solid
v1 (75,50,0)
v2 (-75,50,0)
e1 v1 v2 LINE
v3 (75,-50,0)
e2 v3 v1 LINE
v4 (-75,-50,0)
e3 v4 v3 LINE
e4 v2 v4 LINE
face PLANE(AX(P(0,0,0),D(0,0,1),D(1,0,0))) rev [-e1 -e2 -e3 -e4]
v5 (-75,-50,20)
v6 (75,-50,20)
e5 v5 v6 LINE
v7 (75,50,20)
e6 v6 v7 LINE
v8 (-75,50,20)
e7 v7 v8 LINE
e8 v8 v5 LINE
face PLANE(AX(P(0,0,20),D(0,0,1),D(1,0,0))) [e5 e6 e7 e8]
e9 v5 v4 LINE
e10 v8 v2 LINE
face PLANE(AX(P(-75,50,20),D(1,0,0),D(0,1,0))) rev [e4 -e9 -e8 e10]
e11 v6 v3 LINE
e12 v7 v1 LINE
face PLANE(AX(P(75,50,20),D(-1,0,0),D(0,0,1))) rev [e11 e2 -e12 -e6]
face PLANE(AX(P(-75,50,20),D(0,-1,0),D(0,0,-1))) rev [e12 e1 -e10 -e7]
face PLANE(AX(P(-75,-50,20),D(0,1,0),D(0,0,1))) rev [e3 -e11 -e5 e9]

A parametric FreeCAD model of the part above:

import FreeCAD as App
import Part
import Sketcher
from FreeCAD import Vector


def add_polygon(sketch, points):
    """Adds a closed chain of lines whose ends are joined by coincident constraints."""
    first, n = sketch.GeometryCount, len(points)
    for a, b in zip(points, points[1:] + points[:1]):
        sketch.addGeometry(Part.LineSegment(App.Vector(*a, 0), App.Vector(*b, 0)), False)
    for i in range(n):
        sketch.addConstraint(Sketcher.Constraint("Coincident", first + i, 2, first + (i + 1) % n, 1))

doc = App.newDocument("Part")
body = doc.addObject("PartDesign::Body", "Body")

# Sketch on XY plane
sketch1 = body.newObject("Sketcher::SketchObject", "Sketch")
sketch1.AttachmentSupport = (doc.getObject("XY_Plane"), [""])
sketch1.MapMode = "FlatFace"
add_polygon(sketch1, [(-75, 50), (-75, -50), (75, -50), (75, 50)])  # lines 0-3
sketch1.addConstraint(Sketcher.Constraint("Vertical", 0))
sketch1.addConstraint(Sketcher.Constraint("Horizontal", 1))
sketch1.addConstraint(Sketcher.Constraint("Vertical", 2))
sketch1.addConstraint(Sketcher.Constraint("Horizontal", 3))
sketch1.addConstraint(Sketcher.Constraint("Symmetric", 0, 2, 2, 2, -1, 1))
sketch1.addConstraint(Sketcher.Constraint("DistanceX", 1, 1, 1, 2, 150.0))
sketch1.addConstraint(Sketcher.Constraint("DistanceY", 0, 2, 0, 1, 100.0))
pad1 = body.newObject("PartDesign::Pad", "Pad")
pad1.Profile = sketch1
pad1.Length = 20

doc.recompute()
